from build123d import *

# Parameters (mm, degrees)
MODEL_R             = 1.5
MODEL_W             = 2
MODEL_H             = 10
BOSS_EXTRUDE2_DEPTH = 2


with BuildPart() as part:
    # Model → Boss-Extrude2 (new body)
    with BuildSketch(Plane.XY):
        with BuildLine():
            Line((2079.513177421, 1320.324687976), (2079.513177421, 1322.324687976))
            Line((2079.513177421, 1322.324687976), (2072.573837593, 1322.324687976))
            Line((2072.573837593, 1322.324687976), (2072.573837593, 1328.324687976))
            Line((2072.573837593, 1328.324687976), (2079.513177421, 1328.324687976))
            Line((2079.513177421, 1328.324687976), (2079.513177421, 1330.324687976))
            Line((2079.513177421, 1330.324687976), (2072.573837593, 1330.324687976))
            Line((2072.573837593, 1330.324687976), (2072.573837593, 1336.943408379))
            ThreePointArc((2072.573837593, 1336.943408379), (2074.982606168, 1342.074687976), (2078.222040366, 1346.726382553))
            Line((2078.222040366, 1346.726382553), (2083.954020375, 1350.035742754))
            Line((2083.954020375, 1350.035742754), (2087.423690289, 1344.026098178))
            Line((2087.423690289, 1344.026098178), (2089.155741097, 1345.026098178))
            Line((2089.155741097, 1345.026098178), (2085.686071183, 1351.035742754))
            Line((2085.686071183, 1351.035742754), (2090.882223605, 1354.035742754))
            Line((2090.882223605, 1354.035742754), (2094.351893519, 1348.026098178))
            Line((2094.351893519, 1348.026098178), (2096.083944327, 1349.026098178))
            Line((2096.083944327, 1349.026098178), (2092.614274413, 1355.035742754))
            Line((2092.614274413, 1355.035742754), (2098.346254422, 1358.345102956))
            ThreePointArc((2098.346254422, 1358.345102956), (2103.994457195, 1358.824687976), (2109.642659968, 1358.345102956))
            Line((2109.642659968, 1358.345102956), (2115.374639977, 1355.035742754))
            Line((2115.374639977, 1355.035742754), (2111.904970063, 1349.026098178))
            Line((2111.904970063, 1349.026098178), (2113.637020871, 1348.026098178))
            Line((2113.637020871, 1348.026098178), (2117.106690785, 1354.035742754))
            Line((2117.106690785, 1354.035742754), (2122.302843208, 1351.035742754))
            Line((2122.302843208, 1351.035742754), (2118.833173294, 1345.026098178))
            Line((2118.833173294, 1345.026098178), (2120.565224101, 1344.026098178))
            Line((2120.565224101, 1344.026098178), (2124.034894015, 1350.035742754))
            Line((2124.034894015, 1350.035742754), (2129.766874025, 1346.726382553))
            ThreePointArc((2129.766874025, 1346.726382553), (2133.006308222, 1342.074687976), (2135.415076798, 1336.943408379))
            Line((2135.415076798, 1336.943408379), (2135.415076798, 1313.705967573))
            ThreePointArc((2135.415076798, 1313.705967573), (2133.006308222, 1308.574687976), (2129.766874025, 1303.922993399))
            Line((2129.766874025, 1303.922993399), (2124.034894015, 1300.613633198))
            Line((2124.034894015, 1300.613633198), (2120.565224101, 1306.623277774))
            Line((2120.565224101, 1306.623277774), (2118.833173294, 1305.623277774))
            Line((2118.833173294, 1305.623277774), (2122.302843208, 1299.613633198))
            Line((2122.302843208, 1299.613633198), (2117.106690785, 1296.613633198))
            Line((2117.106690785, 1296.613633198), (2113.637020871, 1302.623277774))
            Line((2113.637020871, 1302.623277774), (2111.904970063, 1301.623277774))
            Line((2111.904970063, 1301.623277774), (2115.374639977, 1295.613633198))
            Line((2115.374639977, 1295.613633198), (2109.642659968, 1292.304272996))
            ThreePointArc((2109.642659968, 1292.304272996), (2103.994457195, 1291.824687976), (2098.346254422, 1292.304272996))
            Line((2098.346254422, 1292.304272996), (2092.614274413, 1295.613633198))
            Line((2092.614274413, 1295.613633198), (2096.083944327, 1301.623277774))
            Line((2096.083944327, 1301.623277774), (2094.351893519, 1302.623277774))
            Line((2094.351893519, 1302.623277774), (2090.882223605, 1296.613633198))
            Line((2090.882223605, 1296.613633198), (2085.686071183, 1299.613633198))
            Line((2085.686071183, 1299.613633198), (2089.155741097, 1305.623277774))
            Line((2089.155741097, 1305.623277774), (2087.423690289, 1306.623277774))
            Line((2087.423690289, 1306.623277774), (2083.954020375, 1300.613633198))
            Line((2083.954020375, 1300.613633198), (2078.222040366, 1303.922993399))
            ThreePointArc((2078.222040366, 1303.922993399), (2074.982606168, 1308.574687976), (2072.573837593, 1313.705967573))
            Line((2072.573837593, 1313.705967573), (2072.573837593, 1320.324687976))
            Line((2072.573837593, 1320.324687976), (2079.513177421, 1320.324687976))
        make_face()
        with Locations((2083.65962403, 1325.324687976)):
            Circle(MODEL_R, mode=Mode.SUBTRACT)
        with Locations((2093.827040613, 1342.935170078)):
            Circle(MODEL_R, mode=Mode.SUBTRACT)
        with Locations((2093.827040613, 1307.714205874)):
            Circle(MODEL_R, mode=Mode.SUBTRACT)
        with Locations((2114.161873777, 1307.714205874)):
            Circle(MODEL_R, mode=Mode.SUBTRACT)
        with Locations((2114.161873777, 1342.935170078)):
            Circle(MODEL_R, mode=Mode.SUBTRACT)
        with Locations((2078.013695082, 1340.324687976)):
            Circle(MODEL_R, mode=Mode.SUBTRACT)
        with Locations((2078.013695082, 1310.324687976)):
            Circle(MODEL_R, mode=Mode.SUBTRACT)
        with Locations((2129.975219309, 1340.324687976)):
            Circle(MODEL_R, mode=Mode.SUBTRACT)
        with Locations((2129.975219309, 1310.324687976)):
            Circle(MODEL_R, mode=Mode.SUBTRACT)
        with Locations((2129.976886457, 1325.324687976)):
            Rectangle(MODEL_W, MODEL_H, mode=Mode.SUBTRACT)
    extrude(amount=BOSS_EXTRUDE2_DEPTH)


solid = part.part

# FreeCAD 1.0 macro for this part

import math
import FreeCAD as App
import Part
import Sketcher
from FreeCAD import Vector
Q = App.Units.Quantity


def add_polygon(sketch, points):
    """Adds a closed chain of lines whose ends are joined by coincident constraints."""
    first, n = sketch.GeometryCount, len(points)
    for a, b in zip(points, points[1:] + points[:1]):
        sketch.addGeometry(Part.LineSegment(App.Vector(*a, 0), App.Vector(*b, 0)), False)
    for i in range(n):
        sketch.addConstraint(Sketcher.Constraint("Coincident", first + i, 2, first + (i + 1) % n, 1))

doc = App.newDocument("Part")
body = doc.addObject("PartDesign::Body", "Body")

# Sketch on XY plane
sketch1 = body.newObject("Sketcher::SketchObject", "Sketch")
sketch1.AttachmentSupport = (doc.getObject("XY_Plane"), [""])
sketch1.MapMode = "FlatFace"
sketch1.addGeometry(Part.LineSegment(Vector(2079.513177, 1322.324688, 0), Vector(2079.513177, 1320.324688, 0)), False)  # 0
sketch1.addGeometry(Part.LineSegment(Vector(2079.513177, 1320.324688, 0), Vector(2072.573838, 1320.324688, 0)), False)  # 1
sketch1.addGeometry(Part.LineSegment(Vector(2072.573838, 1320.324688, 0), Vector(2072.573838, 1313.705968, 0)), False)  # 2
sketch1.addGeometry(Part.ArcOfCircle(Part.Circle(Vector(2103.994457, 1325.324688, 0), Vector(0, 0, 1), 33.5), math.radians(-159.706608), math.radians(-140.293392)), False)  # 3
sketch1.addGeometry(Part.LineSegment(Vector(2078.22204, 1303.922993, 0), Vector(2083.95402, 1300.613633, 0)), False)  # 4
sketch1.addGeometry(Part.LineSegment(Vector(2083.95402, 1300.613633, 0), Vector(2087.42369, 1306.623278, 0)), False)  # 5
sketch1.addGeometry(Part.LineSegment(Vector(2087.42369, 1306.623278, 0), Vector(2089.155741, 1305.623278, 0)), False)  # 6
sketch1.addGeometry(Part.LineSegment(Vector(2089.155741, 1305.623278, 0), Vector(2085.686071, 1299.613633, 0)), False)  # 7
sketch1.addGeometry(Part.LineSegment(Vector(2085.686071, 1299.613633, 0), Vector(2090.882224, 1296.613633, 0)), False)  # 8
sketch1.addGeometry(Part.LineSegment(Vector(2090.882224, 1296.613633, 0), Vector(2094.351894, 1302.623278, 0)), False)  # 9
sketch1.addGeometry(Part.LineSegment(Vector(2094.351894, 1302.623278, 0), Vector(2096.083944, 1301.623278, 0)), False)  # 10
sketch1.addGeometry(Part.LineSegment(Vector(2096.083944, 1301.623278, 0), Vector(2092.614274, 1295.613633, 0)), False)  # 11
sketch1.addGeometry(Part.LineSegment(Vector(2092.614274, 1295.613633, 0), Vector(2098.346254, 1292.304273, 0)), False)  # 12
sketch1.addGeometry(Part.ArcOfCircle(Part.Circle(Vector(2103.994457, 1325.324688, 0), Vector(0, 0, 1), 33.5), math.radians(-99.706608), math.radians(-80.293392)), False)  # 13
sketch1.addGeometry(Part.LineSegment(Vector(2109.64266, 1292.304273, 0), Vector(2115.37464, 1295.613633, 0)), False)  # 14
sketch1.addGeometry(Part.LineSegment(Vector(2115.37464, 1295.613633, 0), Vector(2111.90497, 1301.623278, 0)), False)  # 15
sketch1.addGeometry(Part.LineSegment(Vector(2111.90497, 1301.623278, 0), Vector(2113.637021, 1302.623278, 0)), False)  # 16
sketch1.addGeometry(Part.LineSegment(Vector(2113.637021, 1302.623278, 0), Vector(2117.106691, 1296.613633, 0)), False)  # 17
sketch1.addGeometry(Part.LineSegment(Vector(2117.106691, 1296.613633, 0), Vector(2122.302843, 1299.613633, 0)), False)  # 18
sketch1.addGeometry(Part.LineSegment(Vector(2122.302843, 1299.613633, 0), Vector(2118.833173, 1305.623278, 0)), False)  # 19
sketch1.addGeometry(Part.LineSegment(Vector(2118.833173, 1305.623278, 0), Vector(2120.565224, 1306.623278, 0)), False)  # 20
sketch1.addGeometry(Part.LineSegment(Vector(2120.565224, 1306.623278, 0), Vector(2124.034894, 1300.613633, 0)), False)  # 21
sketch1.addGeometry(Part.LineSegment(Vector(2124.034894, 1300.613633, 0), Vector(2129.766874, 1303.922993, 0)), False)  # 22
sketch1.addGeometry(Part.ArcOfCircle(Part.Circle(Vector(2103.994457, 1325.324688, 0), Vector(0, 0, 1), 33.5), math.radians(-39.706608), math.radians(-20.293392)), False)  # 23
sketch1.addGeometry(Part.LineSegment(Vector(2135.415077, 1313.705968, 0), Vector(2135.415077, 1336.943408, 0)), False)  # 24
sketch1.addGeometry(Part.ArcOfCircle(Part.Circle(Vector(2103.994457, 1325.324688, 0), Vector(0, 0, 1), 33.5), math.radians(20.293392), math.radians(39.706608)), False)  # 25
sketch1.addGeometry(Part.LineSegment(Vector(2129.766874, 1346.726383, 0), Vector(2124.034894, 1350.035743, 0)), False)  # 26
sketch1.addGeometry(Part.LineSegment(Vector(2124.034894, 1350.035743, 0), Vector(2120.565224, 1344.026098, 0)), False)  # 27
sketch1.addGeometry(Part.LineSegment(Vector(2120.565224, 1344.026098, 0), Vector(2118.833173, 1345.026098, 0)), False)  # 28
sketch1.addGeometry(Part.LineSegment(Vector(2118.833173, 1345.026098, 0), Vector(2122.302843, 1351.035743, 0)), False)  # 29
sketch1.addGeometry(Part.LineSegment(Vector(2122.302843, 1351.035743, 0), Vector(2117.106691, 1354.035743, 0)), False)  # 30
sketch1.addGeometry(Part.LineSegment(Vector(2117.106691, 1354.035743, 0), Vector(2113.637021, 1348.026098, 0)), False)  # 31
sketch1.addGeometry(Part.LineSegment(Vector(2113.637021, 1348.026098, 0), Vector(2111.90497, 1349.026098, 0)), False)  # 32
sketch1.addGeometry(Part.LineSegment(Vector(2111.90497, 1349.026098, 0), Vector(2115.37464, 1355.035743, 0)), False)  # 33
sketch1.addGeometry(Part.LineSegment(Vector(2115.37464, 1355.035743, 0), Vector(2109.64266, 1358.345103, 0)), False)  # 34
sketch1.addGeometry(Part.ArcOfCircle(Part.Circle(Vector(2103.994457, 1325.324688, 0), Vector(0, 0, 1), 33.5), math.radians(80.293392), math.radians(99.706608)), False)  # 35
sketch1.addGeometry(Part.LineSegment(Vector(2098.346254, 1358.345103, 0), Vector(2092.614274, 1355.035743, 0)), False)  # 36
sketch1.addGeometry(Part.LineSegment(Vector(2092.614274, 1355.035743, 0), Vector(2096.083944, 1349.026098, 0)), False)  # 37
sketch1.addGeometry(Part.LineSegment(Vector(2096.083944, 1349.026098, 0), Vector(2094.351894, 1348.026098, 0)), False)  # 38
sketch1.addGeometry(Part.LineSegment(Vector(2094.351894, 1348.026098, 0), Vector(2090.882224, 1354.035743, 0)), False)  # 39
sketch1.addGeometry(Part.LineSegment(Vector(2090.882224, 1354.035743, 0), Vector(2085.686071, 1351.035743, 0)), False)  # 40
sketch1.addGeometry(Part.LineSegment(Vector(2085.686071, 1351.035743, 0), Vector(2089.155741, 1345.026098, 0)), False)  # 41
sketch1.addGeometry(Part.LineSegment(Vector(2089.155741, 1345.026098, 0), Vector(2087.42369, 1344.026098, 0)), False)  # 42
sketch1.addGeometry(Part.LineSegment(Vector(2087.42369, 1344.026098, 0), Vector(2083.95402, 1350.035743, 0)), False)  # 43
sketch1.addGeometry(Part.LineSegment(Vector(2083.95402, 1350.035743, 0), Vector(2078.22204, 1346.726383, 0)), False)  # 44
sketch1.addGeometry(Part.ArcOfCircle(Part.Circle(Vector(2103.994457, 1325.324688, 0), Vector(0, 0, 1), 33.5), math.radians(140.293392), math.radians(159.706608)), False)  # 45
sketch1.addGeometry(Part.LineSegment(Vector(2072.573838, 1336.943408, 0), Vector(2072.573838, 1330.324688, 0)), False)  # 46
sketch1.addGeometry(Part.LineSegment(Vector(2072.573838, 1330.324688, 0), Vector(2079.513177, 1330.324688, 0)), False)  # 47
sketch1.addGeometry(Part.LineSegment(Vector(2079.513177, 1330.324688, 0), Vector(2079.513177, 1328.324688, 0)), False)  # 48
sketch1.addGeometry(Part.LineSegment(Vector(2079.513177, 1328.324688, 0), Vector(2072.573838, 1328.324688, 0)), False)  # 49
sketch1.addGeometry(Part.LineSegment(Vector(2072.573838, 1328.324688, 0), Vector(2072.573838, 1322.324688, 0)), False)  # 50
sketch1.addGeometry(Part.LineSegment(Vector(2072.573838, 1322.324688, 0), Vector(2079.513177, 1322.324688, 0)), False)  # 51
sketch1.addGeometry(Part.Circle(Vector(2129.975219, 1310.324688, 0), Vector(0, 0, 1), 1.5), False)  # 52
sketch1.addGeometry(Part.Circle(Vector(2114.161874, 1307.714206, 0), Vector(0, 0, 1), 1.5), False)  # 53
add_polygon(sketch1, [(2128.976886, 1320.324688), (2128.976886, 1330.324688), (2130.976886, 1330.324688), (2130.976886, 1320.324688)])  # lines 54-57
sketch1.addGeometry(Part.Circle(Vector(2093.827041, 1307.714206, 0), Vector(0, 0, 1), 1.5), False)  # 58
sketch1.addGeometry(Part.Circle(Vector(2078.013695, 1310.324688, 0), Vector(0, 0, 1), 1.5), False)  # 59
sketch1.addGeometry(Part.Circle(Vector(2083.659624, 1325.324688, 0), Vector(0, 0, 1), 1.5), False)  # 60
sketch1.addGeometry(Part.Circle(Vector(2129.975219, 1340.324688, 0), Vector(0, 0, 1), 1.5), False)  # 61
sketch1.addGeometry(Part.Circle(Vector(2114.161874, 1342.93517, 0), Vector(0, 0, 1), 1.5), False)  # 62
sketch1.addGeometry(Part.Circle(Vector(2093.827041, 1342.93517, 0), Vector(0, 0, 1), 1.5), False)  # 63
sketch1.addGeometry(Part.Circle(Vector(2078.013695, 1340.324688, 0), Vector(0, 0, 1), 1.5), False)  # 64
sketch1.addConstraint([
    Sketcher.Constraint("Coincident", 0, 2, 1, 1),
    Sketcher.Constraint("Coincident", 1, 2, 2, 1),
    Sketcher.Constraint("Coincident", 2, 2, 3, 1),
    Sketcher.Constraint("Coincident", 3, 2, 4, 1),
    Sketcher.Constraint("Coincident", 4, 2, 5, 1),
    Sketcher.Constraint("Coincident", 5, 2, 6, 1),
    Sketcher.Constraint("Coincident", 6, 2, 7, 1),
    Sketcher.Constraint("Coincident", 7, 2, 8, 1),
    Sketcher.Constraint("Coincident", 8, 2, 9, 1),
    Sketcher.Constraint("Coincident", 9, 2, 10, 1),
    Sketcher.Constraint("Coincident", 10, 2, 11, 1),
    Sketcher.Constraint("Coincident", 11, 2, 12, 1),
    Sketcher.Constraint("Coincident", 12, 2, 13, 1),
    Sketcher.Constraint("Coincident", 13, 2, 14, 1),
    Sketcher.Constraint("Coincident", 14, 2, 15, 1),
    Sketcher.Constraint("Coincident", 15, 2, 16, 1),
    Sketcher.Constraint("Coincident", 16, 2, 17, 1),
    Sketcher.Constraint("Coincident", 17, 2, 18, 1),
    Sketcher.Constraint("Coincident", 18, 2, 19, 1),
    Sketcher.Constraint("Coincident", 19, 2, 20, 1),
    Sketcher.Constraint("Coincident", 20, 2, 21, 1),
    Sketcher.Constraint("Coincident", 21, 2, 22, 1),
    Sketcher.Constraint("Coincident", 22, 2, 23, 1),
    Sketcher.Constraint("Coincident", 23, 2, 24, 1),
    Sketcher.Constraint("Coincident", 24, 2, 25, 1),
    Sketcher.Constraint("Coincident", 25, 2, 26, 1),
    Sketcher.Constraint("Coincident", 26, 2, 27, 1),
    Sketcher.Constraint("Coincident", 27, 2, 28, 1),
    Sketcher.Constraint("Coincident", 28, 2, 29, 1),
    Sketcher.Constraint("Coincident", 29, 2, 30, 1),
    Sketcher.Constraint("Coincident", 30, 2, 31, 1),
    Sketcher.Constraint("Coincident", 31, 2, 32, 1),
    Sketcher.Constraint("Coincident", 32, 2, 33, 1),
    Sketcher.Constraint("Coincident", 33, 2, 34, 1),
    Sketcher.Constraint("Coincident", 34, 2, 35, 1),
    Sketcher.Constraint("Coincident", 35, 2, 36, 1),
    Sketcher.Constraint("Coincident", 36, 2, 37, 1),
    Sketcher.Constraint("Coincident", 37, 2, 38, 1),
    Sketcher.Constraint("Coincident", 38, 2, 39, 1),
    Sketcher.Constraint("Coincident", 39, 2, 40, 1),
    Sketcher.Constraint("Coincident", 40, 2, 41, 1),
    Sketcher.Constraint("Coincident", 41, 2, 42, 1),
    Sketcher.Constraint("Coincident", 42, 2, 43, 1),
    Sketcher.Constraint("Coincident", 43, 2, 44, 1),
    Sketcher.Constraint("Coincident", 44, 2, 45, 1),
    Sketcher.Constraint("Coincident", 45, 2, 46, 1),
    Sketcher.Constraint("Coincident", 46, 2, 47, 1),
    Sketcher.Constraint("Coincident", 47, 2, 48, 1),
    Sketcher.Constraint("Coincident", 48, 2, 49, 1),
    Sketcher.Constraint("Coincident", 49, 2, 50, 1),
    Sketcher.Constraint("Coincident", 50, 2, 51, 1),
    Sketcher.Constraint("Coincident", 51, 2, 0, 1),
    Sketcher.Constraint("Vertical", 0),
    Sketcher.Constraint("Horizontal", 1),
    Sketcher.Constraint("Vertical", 2),
    Sketcher.Constraint("Vertical", 24),
    Sketcher.Constraint("Vertical", 46),
    Sketcher.Constraint("Horizontal", 47),
    Sketcher.Constraint("Vertical", 48),
    Sketcher.Constraint("Horizontal", 49),
    Sketcher.Constraint("Vertical", 50),
    Sketcher.Constraint("Horizontal", 51),
    Sketcher.Constraint("Vertical", 54),
    Sketcher.Constraint("Horizontal", 55),
    Sketcher.Constraint("Vertical", 56),
    Sketcher.Constraint("Horizontal", 57),
    Sketcher.Constraint("Coincident", 13, 3, 3, 3),
    Sketcher.Constraint("Coincident", 23, 3, 3, 3),
    Sketcher.Constraint("Coincident", 25, 3, 3, 3),
    Sketcher.Constraint("Coincident", 35, 3, 3, 3),
    Sketcher.Constraint("Coincident", 45, 3, 3, 3),
    Sketcher.Constraint("Equal", 3, 13),
    Sketcher.Constraint("Equal", 13, 23),
    Sketcher.Constraint("Equal", 23, 25),
    Sketcher.Constraint("Equal", 25, 35),
    Sketcher.Constraint("Equal", 35, 45),
    Sketcher.Constraint("Equal", 52, 53),
    Sketcher.Constraint("Equal", 53, 58),
    Sketcher.Constraint("Equal", 58, 59),
    Sketcher.Constraint("Equal", 59, 60),
    Sketcher.Constraint("Equal", 60, 61),
    Sketcher.Constraint("Equal", 61, 62),
    Sketcher.Constraint("Equal", 62, 63),
    Sketcher.Constraint("Equal", 63, 64),
    Sketcher.Constraint("Perpendicular", 4, 5),
    Sketcher.Constraint("Perpendicular", 5, 6),
    Sketcher.Constraint("Perpendicular", 6, 7),
    Sketcher.Constraint("Perpendicular", 7, 8),
    Sketcher.Constraint("Perpendicular", 8, 9),
    Sketcher.Constraint("Perpendicular", 9, 10),
    Sketcher.Constraint("Perpendicular", 10, 11),
    Sketcher.Constraint("Perpendicular", 11, 12),
    Sketcher.Constraint("Perpendicular", 14, 15),
    Sketcher.Constraint("Perpendicular", 15, 16),
    Sketcher.Constraint("Perpendicular", 16, 17),
    Sketcher.Constraint("Perpendicular", 17, 18),
    Sketcher.Constraint("Perpendicular", 18, 19),
    Sketcher.Constraint("Perpendicular", 19, 20),
    Sketcher.Constraint("Perpendicular", 20, 21),
    Sketcher.Constraint("Perpendicular", 21, 22),
    Sketcher.Constraint("Parallel", 12, 26),
    Sketcher.Constraint("Perpendicular", 26, 27),
    Sketcher.Constraint("Perpendicular", 27, 28),
    Sketcher.Constraint("Perpendicular", 28, 29),
    Sketcher.Constraint("Perpendicular", 29, 30),
    Sketcher.Constraint("Perpendicular", 30, 31),
    Sketcher.Constraint("Perpendicular", 31, 32),
    Sketcher.Constraint("Perpendicular", 32, 33),
    Sketcher.Constraint("Perpendicular", 33, 34),
    Sketcher.Constraint("Parallel", 22, 36),
    Sketcher.Constraint("Perpendicular", 36, 37),
    Sketcher.Constraint("Perpendicular", 37, 38),
    Sketcher.Constraint("Perpendicular", 38, 39),
    Sketcher.Constraint("Perpendicular", 39, 40),
    Sketcher.Constraint("Perpendicular", 40, 41),
    Sketcher.Constraint("Perpendicular", 41, 42),
    Sketcher.Constraint("Perpendicular", 42, 43),
    Sketcher.Constraint("Perpendicular", 43, 44),
    Sketcher.Constraint("Horizontal", 53, 3, 58, 3),
    Sketcher.Constraint("Horizontal", 52, 3, 59, 3),
    Sketcher.Constraint("Horizontal", 45, 3, 60, 3),
    Sketcher.Constraint("Horizontal", 62, 3, 63, 3),
    Sketcher.Constraint("Horizontal", 61, 3, 64, 3),
    Sketcher.Constraint("Horizontal", 12, 2, 13, 2),
    Sketcher.Constraint("Horizontal", 11, 2, 14, 2),
    Sketcher.Constraint("Horizontal", 10, 2, 15, 2),
    Sketcher.Constraint("Horizontal", 9, 2, 16, 2),
    Sketcher.Constraint("Horizontal", 8, 2, 17, 2),
    Sketcher.Constraint("Horizontal", 7, 2, 18, 2),
    Sketcher.Constraint("Horizontal", 6, 2, 19, 2),
    Sketcher.Constraint("Horizontal", 5, 2, 20, 2),
    Sketcher.Constraint("Horizontal", 4, 2, 21, 2),
    Sketcher.Constraint("Horizontal", 3, 2, 22, 2),
    Sketcher.Constraint("Horizontal", 2, 2, 23, 2),
    Sketcher.Constraint("Horizontal", 34, 2, 35, 2),
    Sketcher.Constraint("Horizontal", 33, 2, 36, 2),
    Sketcher.Constraint("Horizontal", 32, 2, 37, 2),
    Sketcher.Constraint("Horizontal", 31, 2, 38, 2),
    Sketcher.Constraint("Horizontal", 30, 2, 39, 2),
    Sketcher.Constraint("Horizontal", 29, 2, 40, 2),
    Sketcher.Constraint("Horizontal", 28, 2, 41, 2),
    Sketcher.Constraint("Horizontal", 27, 2, 42, 2),
    Sketcher.Constraint("Horizontal", 26, 2, 43, 2),
    Sketcher.Constraint("Horizontal", 24, 2, 45, 2),
    Sketcher.Constraint("Horizontal", 47, 2, 54, 2),
    Sketcher.Constraint("Horizontal", 1, 2, 56, 2),
    Sketcher.Constraint("Vertical", 52, 3, 61, 3),
    Sketcher.Constraint("Vertical", 53, 3, 62, 3),
    Sketcher.Constraint("Vertical", 58, 3, 63, 3),
    Sketcher.Constraint("Vertical", 59, 3, 64, 3),
    Sketcher.Constraint("Vertical", 22, 2, 25, 2),
    Sketcher.Constraint("Vertical", 21, 2, 26, 2),
    Sketcher.Constraint("Vertical", 20, 2, 27, 2),
    Sketcher.Constraint("Vertical", 19, 2, 28, 2),
    Sketcher.Constraint("Vertical", 18, 2, 29, 2),
    Sketcher.Constraint("Vertical", 17, 2, 30, 2),
    Sketcher.Constraint("Vertical", 16, 2, 31, 2),
    Sketcher.Constraint("Vertical", 15, 2, 32, 2),
    Sketcher.Constraint("Vertical", 14, 2, 33, 2),
    Sketcher.Constraint("Vertical", 0, 2, 47, 2),
    Sketcher.Constraint("Vertical", 46, 2, 49, 2),
    Sketcher.Constraint("Equal", 57, 0),
    Sketcher.Constraint("Equal", 2, 46),
    Sketcher.Constraint("Equal", 0, 48),
    Sketcher.Constraint("Equal", 5, 7),
    Sketcher.Constraint("Equal", 7, 9),
    Sketcher.Constraint("Equal", 6, 10),
    Sketcher.Constraint("Equal", 9, 11),
    Sketcher.Constraint("Equal", 4, 12),
    Sketcher.Constraint("Diameter", 52, 3.0),
    Sketcher.Constraint("Radius", 3, 33.5),
    Sketcher.Constraint("DistanceX", 55, 1, 55, 2, 2.0),
    Sketcher.Constraint("DistanceY", 50, 2, 50, 1, 6.0),
    Sketcher.Constraint("Angle", 4, Q("-30 deg")),
    Sketcher.Constraint("Distance", 6, 2.0),
    Sketcher.Constraint("Distance", 8, 6.0),
    Sketcher.Constraint("DistanceX", 1, 2, 1, 1, 6.93934),
    Sketcher.Constraint("DistanceY", 2, 2, 2, 1, 6.61872),
    Sketcher.Constraint("DistanceY", -1, 1, 27, 2, 1344.026098),
    Sketcher.Constraint("Distance", 4, 6.61872),
    Sketcher.Constraint("Distance", 5, 6.93934),
    Sketcher.Constraint("DistanceX", -1, 1, 52, 3, 2129.975219),
    Sketcher.Constraint("DistanceX", -1, 1, 58, 3, 2093.827041),
    Sketcher.Constraint("DistanceY", -1, 1, 62, 3, 1342.93517),
    Sketcher.Constraint("DistanceX", -1, 1, 3, 2, 2078.22204),
    Sketcher.Constraint("DistanceY", -1, 1, 52, 3, 1310.324688),
    Sketcher.Constraint("DistanceX", -1, 1, 53, 3, 2114.161874),
    Sketcher.Constraint("DistanceY", -1, 1, 53, 3, 1307.714206),
    Sketcher.Constraint("DistanceX", -1, 1, 59, 3, 2078.013695),
    Sketcher.Constraint("DistanceX", -1, 1, 60, 3, 2083.659624),
    Sketcher.Constraint("DistanceY", -1, 1, 61, 3, 1340.324688),
    Sketcher.Constraint("DistanceX", -1, 1, 54, 2, 2128.976886),
])
pad1 = body.newObject("PartDesign::Pad", "Pad")
pad1.Profile = sketch1
pad1.Length = 2

doc.recompute()
